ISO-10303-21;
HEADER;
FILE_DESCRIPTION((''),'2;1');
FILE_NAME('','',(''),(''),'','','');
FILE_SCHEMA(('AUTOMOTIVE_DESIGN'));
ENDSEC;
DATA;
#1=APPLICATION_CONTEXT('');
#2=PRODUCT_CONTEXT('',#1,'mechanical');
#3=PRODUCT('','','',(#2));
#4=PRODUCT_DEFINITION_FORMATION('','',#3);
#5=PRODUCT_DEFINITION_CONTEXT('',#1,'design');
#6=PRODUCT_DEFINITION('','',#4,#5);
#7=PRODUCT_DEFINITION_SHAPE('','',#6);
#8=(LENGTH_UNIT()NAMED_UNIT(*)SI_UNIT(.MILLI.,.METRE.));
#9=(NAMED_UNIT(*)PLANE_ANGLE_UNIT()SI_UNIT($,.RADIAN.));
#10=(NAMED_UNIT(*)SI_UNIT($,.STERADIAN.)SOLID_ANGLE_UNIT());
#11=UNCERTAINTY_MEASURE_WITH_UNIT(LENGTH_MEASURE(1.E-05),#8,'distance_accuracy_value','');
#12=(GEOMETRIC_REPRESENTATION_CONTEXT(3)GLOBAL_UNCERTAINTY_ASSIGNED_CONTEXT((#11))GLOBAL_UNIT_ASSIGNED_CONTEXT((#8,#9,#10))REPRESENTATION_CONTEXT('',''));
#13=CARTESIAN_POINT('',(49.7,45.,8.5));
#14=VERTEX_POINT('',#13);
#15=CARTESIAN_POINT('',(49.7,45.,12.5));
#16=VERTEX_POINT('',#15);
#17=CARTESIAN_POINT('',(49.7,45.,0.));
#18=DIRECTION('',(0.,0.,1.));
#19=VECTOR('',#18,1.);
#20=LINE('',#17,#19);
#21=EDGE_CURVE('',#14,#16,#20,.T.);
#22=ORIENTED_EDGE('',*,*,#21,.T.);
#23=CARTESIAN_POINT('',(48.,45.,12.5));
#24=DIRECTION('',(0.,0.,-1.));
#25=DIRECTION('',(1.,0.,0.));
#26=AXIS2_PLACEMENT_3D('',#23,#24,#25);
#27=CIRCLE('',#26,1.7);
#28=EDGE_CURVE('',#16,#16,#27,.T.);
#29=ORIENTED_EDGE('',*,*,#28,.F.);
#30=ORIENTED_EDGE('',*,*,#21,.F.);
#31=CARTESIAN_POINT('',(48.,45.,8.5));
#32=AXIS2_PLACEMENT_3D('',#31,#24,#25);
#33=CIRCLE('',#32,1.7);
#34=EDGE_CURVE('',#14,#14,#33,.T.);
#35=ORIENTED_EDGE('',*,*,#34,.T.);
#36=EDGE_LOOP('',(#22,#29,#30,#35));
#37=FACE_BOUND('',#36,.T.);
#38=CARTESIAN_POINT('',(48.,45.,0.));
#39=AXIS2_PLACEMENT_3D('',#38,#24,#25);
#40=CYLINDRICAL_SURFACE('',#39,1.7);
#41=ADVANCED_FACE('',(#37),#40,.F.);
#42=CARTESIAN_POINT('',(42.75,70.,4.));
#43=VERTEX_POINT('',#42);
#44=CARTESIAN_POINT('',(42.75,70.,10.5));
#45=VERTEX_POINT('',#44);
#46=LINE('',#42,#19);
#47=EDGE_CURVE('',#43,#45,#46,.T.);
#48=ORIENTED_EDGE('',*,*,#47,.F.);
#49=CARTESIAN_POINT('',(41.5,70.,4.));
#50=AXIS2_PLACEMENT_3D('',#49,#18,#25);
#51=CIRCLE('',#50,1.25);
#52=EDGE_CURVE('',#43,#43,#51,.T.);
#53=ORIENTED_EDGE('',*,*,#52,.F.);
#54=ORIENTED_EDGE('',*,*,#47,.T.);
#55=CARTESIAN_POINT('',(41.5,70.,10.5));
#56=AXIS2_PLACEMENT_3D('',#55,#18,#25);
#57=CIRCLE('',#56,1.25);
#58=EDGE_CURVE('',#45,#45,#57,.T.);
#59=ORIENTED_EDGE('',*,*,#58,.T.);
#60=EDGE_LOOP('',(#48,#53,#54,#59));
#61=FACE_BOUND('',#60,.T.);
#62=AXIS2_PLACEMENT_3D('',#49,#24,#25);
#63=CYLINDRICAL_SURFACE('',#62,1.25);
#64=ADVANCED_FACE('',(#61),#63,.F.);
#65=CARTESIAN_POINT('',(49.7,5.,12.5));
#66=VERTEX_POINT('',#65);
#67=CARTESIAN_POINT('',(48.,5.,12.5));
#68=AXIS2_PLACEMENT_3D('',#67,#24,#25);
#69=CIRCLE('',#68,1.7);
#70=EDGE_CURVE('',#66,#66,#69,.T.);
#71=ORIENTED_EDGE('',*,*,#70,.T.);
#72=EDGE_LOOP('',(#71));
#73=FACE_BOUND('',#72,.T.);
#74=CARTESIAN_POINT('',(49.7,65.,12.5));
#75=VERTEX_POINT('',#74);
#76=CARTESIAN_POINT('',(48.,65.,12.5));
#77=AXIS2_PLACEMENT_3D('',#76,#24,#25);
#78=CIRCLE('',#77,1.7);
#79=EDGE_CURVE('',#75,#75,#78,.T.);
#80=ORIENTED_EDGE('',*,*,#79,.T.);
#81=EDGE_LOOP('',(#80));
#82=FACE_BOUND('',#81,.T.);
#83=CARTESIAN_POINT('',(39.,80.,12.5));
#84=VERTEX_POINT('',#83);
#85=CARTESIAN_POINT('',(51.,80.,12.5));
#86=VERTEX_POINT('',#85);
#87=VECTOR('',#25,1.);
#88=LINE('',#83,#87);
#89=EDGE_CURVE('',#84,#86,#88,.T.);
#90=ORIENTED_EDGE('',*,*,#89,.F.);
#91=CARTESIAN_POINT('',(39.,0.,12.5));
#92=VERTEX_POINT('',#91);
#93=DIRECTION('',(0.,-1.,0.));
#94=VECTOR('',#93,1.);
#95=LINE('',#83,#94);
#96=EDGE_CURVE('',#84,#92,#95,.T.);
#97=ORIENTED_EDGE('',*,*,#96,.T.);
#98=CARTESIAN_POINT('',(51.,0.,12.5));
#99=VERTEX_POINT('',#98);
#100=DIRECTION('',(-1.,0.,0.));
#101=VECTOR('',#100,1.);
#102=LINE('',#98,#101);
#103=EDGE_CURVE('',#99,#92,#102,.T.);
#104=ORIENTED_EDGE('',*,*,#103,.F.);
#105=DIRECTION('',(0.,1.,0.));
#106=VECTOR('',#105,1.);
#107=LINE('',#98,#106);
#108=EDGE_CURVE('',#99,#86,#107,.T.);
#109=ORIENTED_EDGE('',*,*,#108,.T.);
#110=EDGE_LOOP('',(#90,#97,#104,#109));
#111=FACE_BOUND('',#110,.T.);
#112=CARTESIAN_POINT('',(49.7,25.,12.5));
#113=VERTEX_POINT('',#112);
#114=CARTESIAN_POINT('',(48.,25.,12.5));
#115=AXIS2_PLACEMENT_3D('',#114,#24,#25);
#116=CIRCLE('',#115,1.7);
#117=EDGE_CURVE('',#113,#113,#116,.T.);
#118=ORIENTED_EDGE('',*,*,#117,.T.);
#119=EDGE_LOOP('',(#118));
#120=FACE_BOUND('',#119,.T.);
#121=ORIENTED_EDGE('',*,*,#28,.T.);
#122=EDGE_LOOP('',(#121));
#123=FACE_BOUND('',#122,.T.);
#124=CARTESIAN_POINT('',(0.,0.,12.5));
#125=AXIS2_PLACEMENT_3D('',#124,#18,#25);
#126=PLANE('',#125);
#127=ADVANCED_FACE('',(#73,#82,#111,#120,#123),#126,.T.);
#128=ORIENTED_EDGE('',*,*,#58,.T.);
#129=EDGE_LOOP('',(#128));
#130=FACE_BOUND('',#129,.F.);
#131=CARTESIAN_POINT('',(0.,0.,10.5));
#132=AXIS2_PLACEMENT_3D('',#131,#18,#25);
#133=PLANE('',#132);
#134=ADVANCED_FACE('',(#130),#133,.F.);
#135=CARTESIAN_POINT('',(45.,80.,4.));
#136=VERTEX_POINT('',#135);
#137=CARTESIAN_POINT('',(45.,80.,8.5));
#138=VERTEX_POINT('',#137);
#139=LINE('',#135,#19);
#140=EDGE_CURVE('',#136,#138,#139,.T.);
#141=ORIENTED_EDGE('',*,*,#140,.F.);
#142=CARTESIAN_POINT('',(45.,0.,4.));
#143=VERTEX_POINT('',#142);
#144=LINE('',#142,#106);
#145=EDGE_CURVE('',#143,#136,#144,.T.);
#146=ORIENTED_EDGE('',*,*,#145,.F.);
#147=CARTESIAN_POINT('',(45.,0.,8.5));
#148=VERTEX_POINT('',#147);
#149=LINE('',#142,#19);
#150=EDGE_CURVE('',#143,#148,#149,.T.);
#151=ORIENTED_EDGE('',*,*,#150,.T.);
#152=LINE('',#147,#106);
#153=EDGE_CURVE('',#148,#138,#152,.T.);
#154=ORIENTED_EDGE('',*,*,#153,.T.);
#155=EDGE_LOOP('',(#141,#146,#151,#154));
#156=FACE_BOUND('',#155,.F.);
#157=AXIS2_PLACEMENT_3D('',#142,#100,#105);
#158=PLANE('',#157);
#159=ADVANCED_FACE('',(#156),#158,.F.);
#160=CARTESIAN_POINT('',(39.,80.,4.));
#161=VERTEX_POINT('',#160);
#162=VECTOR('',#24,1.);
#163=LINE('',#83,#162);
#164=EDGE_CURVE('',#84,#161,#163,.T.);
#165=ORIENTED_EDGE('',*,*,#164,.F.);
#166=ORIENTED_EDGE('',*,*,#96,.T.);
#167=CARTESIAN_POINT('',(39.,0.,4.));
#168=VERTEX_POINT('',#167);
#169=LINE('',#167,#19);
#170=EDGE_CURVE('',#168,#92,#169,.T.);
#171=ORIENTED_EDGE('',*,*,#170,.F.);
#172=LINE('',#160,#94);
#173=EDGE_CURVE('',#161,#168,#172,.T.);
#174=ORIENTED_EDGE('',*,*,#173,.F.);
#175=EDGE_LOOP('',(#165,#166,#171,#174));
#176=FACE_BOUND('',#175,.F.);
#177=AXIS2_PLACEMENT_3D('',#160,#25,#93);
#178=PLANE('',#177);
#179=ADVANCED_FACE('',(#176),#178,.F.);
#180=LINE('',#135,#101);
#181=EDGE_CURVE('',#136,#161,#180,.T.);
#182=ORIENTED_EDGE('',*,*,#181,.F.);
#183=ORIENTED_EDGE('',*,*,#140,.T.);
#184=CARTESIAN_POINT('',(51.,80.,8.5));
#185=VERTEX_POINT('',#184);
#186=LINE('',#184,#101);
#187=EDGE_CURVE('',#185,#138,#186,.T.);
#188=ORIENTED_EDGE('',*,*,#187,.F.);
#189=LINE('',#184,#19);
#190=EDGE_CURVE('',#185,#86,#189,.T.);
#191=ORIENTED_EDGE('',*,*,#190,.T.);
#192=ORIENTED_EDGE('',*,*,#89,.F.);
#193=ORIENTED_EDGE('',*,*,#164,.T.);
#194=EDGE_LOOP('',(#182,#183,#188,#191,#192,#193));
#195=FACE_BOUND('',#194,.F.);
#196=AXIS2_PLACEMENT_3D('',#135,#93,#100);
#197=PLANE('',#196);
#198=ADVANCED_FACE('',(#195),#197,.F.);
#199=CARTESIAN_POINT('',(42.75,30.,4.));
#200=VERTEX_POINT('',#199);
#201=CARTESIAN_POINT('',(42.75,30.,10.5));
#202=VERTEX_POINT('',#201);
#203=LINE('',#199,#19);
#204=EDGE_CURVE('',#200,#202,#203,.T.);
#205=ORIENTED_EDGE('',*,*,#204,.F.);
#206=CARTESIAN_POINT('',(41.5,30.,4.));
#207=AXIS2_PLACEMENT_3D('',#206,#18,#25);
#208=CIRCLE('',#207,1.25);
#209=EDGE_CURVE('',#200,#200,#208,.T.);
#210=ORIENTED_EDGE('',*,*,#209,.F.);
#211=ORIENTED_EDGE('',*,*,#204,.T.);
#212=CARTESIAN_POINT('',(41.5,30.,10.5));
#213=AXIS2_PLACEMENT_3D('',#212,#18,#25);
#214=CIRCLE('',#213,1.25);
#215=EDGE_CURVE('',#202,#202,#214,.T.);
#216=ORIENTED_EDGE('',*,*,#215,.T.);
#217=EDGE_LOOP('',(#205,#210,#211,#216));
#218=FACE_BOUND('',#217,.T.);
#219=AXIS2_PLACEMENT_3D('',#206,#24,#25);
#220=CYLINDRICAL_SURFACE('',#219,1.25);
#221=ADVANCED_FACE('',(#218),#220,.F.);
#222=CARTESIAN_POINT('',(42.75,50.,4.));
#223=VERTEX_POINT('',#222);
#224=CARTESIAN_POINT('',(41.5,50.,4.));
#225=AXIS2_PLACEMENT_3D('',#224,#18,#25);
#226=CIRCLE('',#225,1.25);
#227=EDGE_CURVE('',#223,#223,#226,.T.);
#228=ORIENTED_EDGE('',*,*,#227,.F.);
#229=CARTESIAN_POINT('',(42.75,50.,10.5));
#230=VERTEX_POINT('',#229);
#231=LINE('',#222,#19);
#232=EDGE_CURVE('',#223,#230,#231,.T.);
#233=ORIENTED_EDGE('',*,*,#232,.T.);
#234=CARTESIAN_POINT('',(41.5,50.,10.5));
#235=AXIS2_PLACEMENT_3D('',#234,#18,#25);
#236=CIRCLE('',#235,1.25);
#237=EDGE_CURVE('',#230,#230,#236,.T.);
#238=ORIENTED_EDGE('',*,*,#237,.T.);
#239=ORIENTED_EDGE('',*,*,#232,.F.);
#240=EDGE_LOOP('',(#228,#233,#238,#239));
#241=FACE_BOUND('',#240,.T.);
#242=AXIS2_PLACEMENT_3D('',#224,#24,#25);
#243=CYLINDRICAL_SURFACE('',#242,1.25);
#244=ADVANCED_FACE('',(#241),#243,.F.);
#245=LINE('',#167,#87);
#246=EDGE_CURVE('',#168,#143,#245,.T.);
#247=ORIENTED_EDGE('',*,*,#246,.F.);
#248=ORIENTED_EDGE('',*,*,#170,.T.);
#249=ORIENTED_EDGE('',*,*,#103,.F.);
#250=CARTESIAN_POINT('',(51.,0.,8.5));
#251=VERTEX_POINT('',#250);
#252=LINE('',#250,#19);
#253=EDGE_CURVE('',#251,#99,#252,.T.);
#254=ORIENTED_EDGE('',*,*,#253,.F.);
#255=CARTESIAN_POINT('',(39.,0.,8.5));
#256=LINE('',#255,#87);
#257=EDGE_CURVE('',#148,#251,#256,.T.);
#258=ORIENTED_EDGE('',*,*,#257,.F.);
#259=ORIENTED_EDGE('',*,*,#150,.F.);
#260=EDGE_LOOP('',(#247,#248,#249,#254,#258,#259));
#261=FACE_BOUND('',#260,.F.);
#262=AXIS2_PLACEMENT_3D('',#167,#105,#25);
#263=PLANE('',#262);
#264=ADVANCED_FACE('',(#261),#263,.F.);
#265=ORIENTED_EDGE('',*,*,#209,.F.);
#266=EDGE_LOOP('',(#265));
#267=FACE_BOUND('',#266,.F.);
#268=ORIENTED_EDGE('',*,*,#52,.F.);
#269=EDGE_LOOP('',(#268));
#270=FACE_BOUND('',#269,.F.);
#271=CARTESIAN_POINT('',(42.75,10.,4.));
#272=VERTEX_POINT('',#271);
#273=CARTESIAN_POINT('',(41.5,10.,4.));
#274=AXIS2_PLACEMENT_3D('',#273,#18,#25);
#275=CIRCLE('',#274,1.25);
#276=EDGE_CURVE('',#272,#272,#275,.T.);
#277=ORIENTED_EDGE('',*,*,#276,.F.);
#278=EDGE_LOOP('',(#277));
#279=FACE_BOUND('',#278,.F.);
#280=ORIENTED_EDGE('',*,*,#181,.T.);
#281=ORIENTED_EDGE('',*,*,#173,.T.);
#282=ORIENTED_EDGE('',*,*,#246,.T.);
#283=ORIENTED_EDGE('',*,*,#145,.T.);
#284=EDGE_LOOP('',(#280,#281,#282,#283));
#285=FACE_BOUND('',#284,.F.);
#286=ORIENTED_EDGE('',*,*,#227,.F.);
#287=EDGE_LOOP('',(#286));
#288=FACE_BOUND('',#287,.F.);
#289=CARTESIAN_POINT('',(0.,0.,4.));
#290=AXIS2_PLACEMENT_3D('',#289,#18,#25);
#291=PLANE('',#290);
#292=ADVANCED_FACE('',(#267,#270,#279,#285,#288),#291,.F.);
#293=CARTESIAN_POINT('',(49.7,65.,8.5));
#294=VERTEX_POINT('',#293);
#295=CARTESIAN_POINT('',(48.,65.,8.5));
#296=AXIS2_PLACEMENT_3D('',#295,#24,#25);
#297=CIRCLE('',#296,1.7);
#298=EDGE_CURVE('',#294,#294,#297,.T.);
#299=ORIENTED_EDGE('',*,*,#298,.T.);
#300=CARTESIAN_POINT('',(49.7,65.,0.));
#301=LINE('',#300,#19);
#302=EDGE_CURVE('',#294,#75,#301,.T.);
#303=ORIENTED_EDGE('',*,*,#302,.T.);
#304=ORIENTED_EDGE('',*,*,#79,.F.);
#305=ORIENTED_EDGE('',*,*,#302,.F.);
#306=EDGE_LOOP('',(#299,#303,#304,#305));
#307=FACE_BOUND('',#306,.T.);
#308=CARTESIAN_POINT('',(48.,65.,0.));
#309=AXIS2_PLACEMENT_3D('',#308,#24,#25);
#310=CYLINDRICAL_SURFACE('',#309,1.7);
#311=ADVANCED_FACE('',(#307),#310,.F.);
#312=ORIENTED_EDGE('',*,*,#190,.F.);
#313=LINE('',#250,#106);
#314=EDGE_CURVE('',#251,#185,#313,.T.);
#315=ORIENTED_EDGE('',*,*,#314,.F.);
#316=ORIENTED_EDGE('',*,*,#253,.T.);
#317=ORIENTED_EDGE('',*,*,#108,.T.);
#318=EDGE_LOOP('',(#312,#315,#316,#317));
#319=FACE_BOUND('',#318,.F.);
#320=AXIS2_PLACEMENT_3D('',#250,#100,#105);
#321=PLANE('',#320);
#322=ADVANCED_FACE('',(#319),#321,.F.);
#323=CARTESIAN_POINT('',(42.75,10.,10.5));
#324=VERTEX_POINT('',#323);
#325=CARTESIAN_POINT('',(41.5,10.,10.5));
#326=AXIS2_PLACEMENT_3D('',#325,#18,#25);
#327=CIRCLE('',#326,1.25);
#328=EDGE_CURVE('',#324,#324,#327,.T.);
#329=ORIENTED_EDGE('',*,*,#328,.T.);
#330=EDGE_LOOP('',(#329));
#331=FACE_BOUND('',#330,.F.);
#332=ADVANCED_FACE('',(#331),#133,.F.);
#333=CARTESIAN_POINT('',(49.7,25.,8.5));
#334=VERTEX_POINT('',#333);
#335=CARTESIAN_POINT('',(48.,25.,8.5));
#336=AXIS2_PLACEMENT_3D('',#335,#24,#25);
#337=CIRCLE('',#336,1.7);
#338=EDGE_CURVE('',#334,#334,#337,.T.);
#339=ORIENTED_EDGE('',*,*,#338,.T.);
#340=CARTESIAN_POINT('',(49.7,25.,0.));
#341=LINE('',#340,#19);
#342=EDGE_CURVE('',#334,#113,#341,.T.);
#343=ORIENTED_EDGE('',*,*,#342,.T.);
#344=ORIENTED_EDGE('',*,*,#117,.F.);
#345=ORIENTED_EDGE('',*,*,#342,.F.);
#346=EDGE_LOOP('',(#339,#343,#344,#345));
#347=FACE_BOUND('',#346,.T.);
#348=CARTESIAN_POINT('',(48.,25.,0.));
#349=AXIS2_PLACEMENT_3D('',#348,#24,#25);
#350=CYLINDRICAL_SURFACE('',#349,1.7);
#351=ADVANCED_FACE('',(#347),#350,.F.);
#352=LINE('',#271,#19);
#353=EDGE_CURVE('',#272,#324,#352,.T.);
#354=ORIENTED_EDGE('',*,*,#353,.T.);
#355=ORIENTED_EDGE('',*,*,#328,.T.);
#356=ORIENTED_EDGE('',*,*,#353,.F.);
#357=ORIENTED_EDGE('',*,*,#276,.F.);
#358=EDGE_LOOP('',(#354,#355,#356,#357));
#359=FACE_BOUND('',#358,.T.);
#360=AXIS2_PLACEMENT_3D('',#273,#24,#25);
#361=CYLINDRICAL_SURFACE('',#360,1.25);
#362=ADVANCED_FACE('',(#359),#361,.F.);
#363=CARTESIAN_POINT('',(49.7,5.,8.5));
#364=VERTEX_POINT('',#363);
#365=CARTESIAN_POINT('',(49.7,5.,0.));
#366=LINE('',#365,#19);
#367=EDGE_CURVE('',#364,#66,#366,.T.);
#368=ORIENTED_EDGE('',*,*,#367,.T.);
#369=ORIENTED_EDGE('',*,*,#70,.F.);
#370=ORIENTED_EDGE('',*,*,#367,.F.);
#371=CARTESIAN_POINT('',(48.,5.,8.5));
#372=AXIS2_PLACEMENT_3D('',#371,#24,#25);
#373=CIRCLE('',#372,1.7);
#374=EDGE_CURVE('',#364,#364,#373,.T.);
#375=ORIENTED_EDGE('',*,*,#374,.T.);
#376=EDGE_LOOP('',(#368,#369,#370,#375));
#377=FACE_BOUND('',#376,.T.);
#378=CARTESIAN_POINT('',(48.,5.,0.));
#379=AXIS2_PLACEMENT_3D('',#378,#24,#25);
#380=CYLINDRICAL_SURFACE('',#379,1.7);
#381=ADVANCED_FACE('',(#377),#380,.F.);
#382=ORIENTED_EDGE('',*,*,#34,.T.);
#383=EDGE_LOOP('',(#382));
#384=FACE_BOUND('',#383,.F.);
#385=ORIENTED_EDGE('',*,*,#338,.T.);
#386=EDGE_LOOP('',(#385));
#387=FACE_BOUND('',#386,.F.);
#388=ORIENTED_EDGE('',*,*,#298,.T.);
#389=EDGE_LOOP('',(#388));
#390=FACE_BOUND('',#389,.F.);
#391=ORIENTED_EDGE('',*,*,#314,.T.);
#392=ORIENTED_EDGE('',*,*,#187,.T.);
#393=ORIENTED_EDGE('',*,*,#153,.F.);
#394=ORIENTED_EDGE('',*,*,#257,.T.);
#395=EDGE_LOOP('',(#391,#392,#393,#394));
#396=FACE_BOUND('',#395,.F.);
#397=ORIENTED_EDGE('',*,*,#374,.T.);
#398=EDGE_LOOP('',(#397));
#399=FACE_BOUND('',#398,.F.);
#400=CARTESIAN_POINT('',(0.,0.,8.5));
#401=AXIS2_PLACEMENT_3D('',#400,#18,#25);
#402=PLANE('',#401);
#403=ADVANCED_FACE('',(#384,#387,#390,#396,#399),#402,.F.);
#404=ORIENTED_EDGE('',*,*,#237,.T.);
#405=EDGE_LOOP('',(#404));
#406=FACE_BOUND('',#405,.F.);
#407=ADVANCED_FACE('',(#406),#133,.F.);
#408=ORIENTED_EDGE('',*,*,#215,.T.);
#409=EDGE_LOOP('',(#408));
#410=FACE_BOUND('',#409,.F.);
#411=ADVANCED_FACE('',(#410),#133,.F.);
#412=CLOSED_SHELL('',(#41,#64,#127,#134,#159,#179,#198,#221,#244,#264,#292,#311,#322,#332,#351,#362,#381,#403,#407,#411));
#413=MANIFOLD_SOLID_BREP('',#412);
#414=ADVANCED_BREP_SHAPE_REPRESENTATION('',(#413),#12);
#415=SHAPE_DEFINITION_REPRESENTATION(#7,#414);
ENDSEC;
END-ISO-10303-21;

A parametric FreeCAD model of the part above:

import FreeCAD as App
import Part
import Sketcher
Q = App.Units.Quantity


def add_polygon(sketch, points):
    """Adds a closed chain of lines whose ends are joined by coincident constraints."""
    first, n = sketch.GeometryCount, len(points)
    for a, b in zip(points, points[1:] + points[:1]):
        sketch.addGeometry(Part.LineSegment(App.Vector(*a, 0), App.Vector(*b, 0)), False)
    for i in range(n):
        sketch.addConstraint(Sketcher.Constraint("Coincident", first + i, 2, first + (i + 1) % n, 1))

doc = App.newDocument("Part")
params = doc.addObject("Spreadsheet::Sheet", "Params")
for row, (alias, value) in enumerate([
    ("sketch1_width", "6 mm"),
    ("sketch1_height", "80 mm"),
    ("pad1_length", "8.5 mm"),
    ("sketch2_width", "12 mm"),
    ("sketch2_height", "80 mm"),
    ("pad2_length", "4 mm"),
    ("sketch3_diameter", "3.4 mm"),
    ("sketch4_diameter", "2.5 mm"),
    ("pocket2_length", "6.5 mm"),
], start=1):
    params.set(f"A{row}", alias)
    params.set(f"B{row}", "=" + value)
    params.setAlias(f"B{row}", alias)

body = doc.addObject("PartDesign::Body", "Body")

# Sketch on XY plane
sketch1 = body.newObject("Sketcher::SketchObject", "Sketch")
sketch1.AttachmentSupport = (doc.getObject("XY_Plane"), [""])
sketch1.MapMode = "FlatFace"
sketch1.AttachmentOffset = App.Placement(App.Vector(0, 0, 4), App.Rotation())
add_polygon(sketch1, [(39, 80), (39, 0), (45, 0), (45, 80)])  # lines 0-3
sketch1.addConstraint([
    Sketcher.Constraint("Vertical", 0),
    Sketcher.Constraint("Horizontal", 1),
    Sketcher.Constraint("Vertical", 2),
    Sketcher.Constraint("Horizontal", 3),
    Sketcher.Constraint("PointOnObject", 0, 2, -1),
    Sketcher.Constraint("DistanceX", 1, 1, 1, 2, Q("6 mm")),
    Sketcher.Constraint("DistanceY", 0, 2, 0, 1, Q("80 mm")),
    Sketcher.Constraint("DistanceX", -1, 1, 0, 2, Q("39 mm")),
])
sketch1.setExpression("Constraints[9]", "Params.sketch1_width")
sketch1.setExpression("Constraints[10]", "Params.sketch1_height")
pad1 = body.newObject("PartDesign::Pad", "Pad")
pad1.Profile = sketch1
pad1.setExpression("Length", "Params.pad1_length")

# Sketch on XY plane
sketch2 = body.newObject("Sketcher::SketchObject", "Sketch001")
sketch2.AttachmentSupport = (doc.getObject("XY_Plane"), [""])
sketch2.MapMode = "FlatFace"
sketch2.AttachmentOffset = App.Placement(App.Vector(0, 0, 8.5), App.Rotation())
add_polygon(sketch2, [(39, 80), (39, 0), (51, 0), (51, 80)])  # lines 0-3
sketch2.addConstraint([
    Sketcher.Constraint("Vertical", 0),
    Sketcher.Constraint("Horizontal", 1),
    Sketcher.Constraint("Vertical", 2),
    Sketcher.Constraint("Horizontal", 3),
    Sketcher.Constraint("PointOnObject", 0, 2, -1),
    Sketcher.Constraint("DistanceX", 1, 1, 1, 2, Q("12 mm")),
    Sketcher.Constraint("DistanceY", 0, 2, 0, 1, Q("80 mm")),
    Sketcher.Constraint("DistanceX", -1, 1, 0, 2, Q("39 mm")),
])
sketch2.setExpression("Constraints[9]", "Params.sketch2_width")
sketch2.setExpression("Constraints[10]", "Params.sketch2_height")
pad2 = body.newObject("PartDesign::Pad", "Pad001")
pad2.Profile = sketch2
pad2.setExpression("Length", "Params.pad2_length")

# Sketch on XY plane
sketch3 = body.newObject("Sketcher::SketchObject", "Sketch002")
sketch3.AttachmentSupport = (doc.getObject("XY_Plane"), [""])
sketch3.MapMode = "FlatFace"
sketch3.addGeometry([
    Part.Circle(App.Vector(48, 5, 0), App.Vector(0, 0, 1), 1.7),
    Part.Circle(App.Vector(48, 25, 0), App.Vector(0, 0, 1), 1.7),
    Part.Circle(App.Vector(48, 45, 0), App.Vector(0, 0, 1), 1.7),
    Part.Circle(App.Vector(48, 65, 0), App.Vector(0, 0, 1), 1.7),
], False)
sketch3.addConstraint([
    Sketcher.Constraint("Equal", 0, 1),
    Sketcher.Constraint("Equal", 1, 2),
    Sketcher.Constraint("Equal", 2, 3),
    Sketcher.Constraint("Vertical", 0, 3, 1, 3),
    Sketcher.Constraint("Vertical", 1, 3, 2, 3),
    Sketcher.Constraint("Vertical", 2, 3, 3, 3),
    Sketcher.Constraint("Diameter", 0, Q("3.4 mm")),
    Sketcher.Constraint("DistanceX", -1, 1, 0, 3, Q("48 mm")),
    Sketcher.Constraint("DistanceY", -1, 1, 0, 3, Q("5 mm")),
    Sketcher.Constraint("DistanceY", -1, 1, 1, 3, Q("25 mm")),
    Sketcher.Constraint("DistanceY", -1, 1, 2, 3, Q("45 mm")),
    Sketcher.Constraint("DistanceY", -1, 1, 3, 3, Q("65 mm")),
])
sketch3.setExpression("Constraints[6]", "Params.sketch3_diameter")
pocket1 = body.newObject("PartDesign::Pocket", "Pocket")
pocket1.Profile = sketch3
pocket1.Type = "ThroughAll"
pocket1.Reversed = True

# Sketch on XY plane
sketch4 = body.newObject("Sketcher::SketchObject", "Sketch003")
sketch4.AttachmentSupport = (doc.getObject("XY_Plane"), [""])
sketch4.MapMode = "FlatFace"
sketch4.AttachmentOffset = App.Placement(App.Vector(0, 0, 4), App.Rotation())
sketch4.addGeometry([
    Part.Circle(App.Vector(41.5, 10, 0), App.Vector(0, 0, 1), 1.2),
    Part.Circle(App.Vector(41.5, 30, 0), App.Vector(0, 0, 1), 1.2),
    Part.Circle(App.Vector(41.5, 50, 0), App.Vector(0, 0, 1), 1.2),
    Part.Circle(App.Vector(41.5, 70, 0), App.Vector(0, 0, 1), 1.2),
], False)
sketch4.addConstraint([
    Sketcher.Constraint("Equal", 0, 1),
    Sketcher.Constraint("Equal", 1, 2),
    Sketcher.Constraint("Equal", 2, 3),
    Sketcher.Constraint("Vertical", 0, 3, 1, 3),
    Sketcher.Constraint("Vertical", 1, 3, 2, 3),
    Sketcher.Constraint("Vertical", 2, 3, 3, 3),
    Sketcher.Constraint("Diameter", 0, Q("2.5 mm")),
    Sketcher.Constraint("DistanceY", -1, 1, 0, 3, Q("10 mm")),
    Sketcher.Constraint("DistanceY", -1, 1, 1, 3, Q("30 mm")),
    Sketcher.Constraint("DistanceY", -1, 1, 2, 3, Q("50 mm")),
    Sketcher.Constraint("DistanceY", -1, 1, 3, 3, Q("70 mm")),
    Sketcher.Constraint("DistanceX", -1, 1, 0, 3, Q("41.5 mm")),
])
sketch4.setExpression("Constraints[6]", "Params.sketch4_diameter")
pocket2 = body.newObject("PartDesign::Pocket", "Pocket001")
pocket2.Profile = sketch4
pocket2.setExpression("Length", "Params.pocket2_length")
pocket2.Reversed = True

doc.recompute()
